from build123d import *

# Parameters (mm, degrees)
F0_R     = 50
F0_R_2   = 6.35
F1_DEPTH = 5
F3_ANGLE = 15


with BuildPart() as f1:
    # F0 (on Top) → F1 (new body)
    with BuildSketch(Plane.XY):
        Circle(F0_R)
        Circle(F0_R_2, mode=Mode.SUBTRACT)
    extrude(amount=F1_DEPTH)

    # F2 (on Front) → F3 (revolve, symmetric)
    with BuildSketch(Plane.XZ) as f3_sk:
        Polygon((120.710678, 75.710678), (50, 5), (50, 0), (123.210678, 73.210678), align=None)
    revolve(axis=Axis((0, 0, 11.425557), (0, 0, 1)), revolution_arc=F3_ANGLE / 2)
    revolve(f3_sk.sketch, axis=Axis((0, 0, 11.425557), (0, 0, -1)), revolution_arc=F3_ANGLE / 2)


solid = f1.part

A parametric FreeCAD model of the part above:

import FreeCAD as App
import Part
import Sketcher
from FreeCAD import Vector
Q = App.Units.Quantity

doc = App.newDocument("Part")
body = doc.addObject("PartDesign::Body", "Body")

# Sketch on XY plane
sketch1 = body.newObject("Sketcher::SketchObject", "Sketch")
sketch1.AttachmentSupport = (doc.getObject("XY_Plane"), [""])
sketch1.MapMode = "FlatFace"
sketch1.addGeometry(Part.Circle(Vector(0, 0, 0), Vector(0, 0, 1), 50), False)
sketch1.addGeometry(Part.Circle(Vector(0, 0, 0), Vector(0, 0, 1), 6.35), False)
sketch1.addConstraint(Sketcher.Constraint("Coincident", 0, 3, -1, 1))
sketch1.addConstraint(Sketcher.Constraint("Coincident", 1, 3, -1, 1))
sketch1.addConstraint(Sketcher.Constraint("Diameter", 0, Q("100 mm")))
sketch1.addConstraint(Sketcher.Constraint("Diameter", 1, Q("12.7 mm")))
pad1 = body.newObject("PartDesign::Pad", "Pad")
pad1.Profile = sketch1
pad1.Length = 5

# Sketch on XZ plane
sketch2 = body.newObject("Sketcher::SketchObject", "Sketch001")
sketch2.AttachmentSupport = (doc.getObject("XZ_Plane"), [""])
sketch2.MapMode = "FlatFace"
sketch2.addGeometry(Part.LineSegment(Vector(120.710678, 75.710678, 0), Vector(50, 5, 0)), False)
sketch2.addGeometry(Part.LineSegment(Vector(50, 5, 0), Vector(50, 0, 0)), False)
sketch2.addGeometry(Part.LineSegment(Vector(50, 0, 0), Vector(123.210678, 73.210678, 0)), False)
sketch2.addGeometry(Part.LineSegment(Vector(123.210678, 73.210678, 0), Vector(120.710678, 75.710678, 0)), False)
sketch2.addConstraint(Sketcher.Constraint("Coincident", 0, 2, 1, 1))
sketch2.addConstraint(Sketcher.Constraint("Coincident", 1, 2, 2, 1))
sketch2.addConstraint(Sketcher.Constraint("Coincident", 2, 2, 3, 1))
sketch2.addConstraint(Sketcher.Constraint("Coincident", 3, 2, 0, 1))
sketch2.addConstraint(Sketcher.Constraint("Vertical", 1))
sketch2.addConstraint(Sketcher.Constraint("PointOnObject", 1, 2, -1))
sketch2.addConstraint(Sketcher.Constraint("Parallel", 0, 2))
sketch2.addConstraint(Sketcher.Constraint("Perpendicular", 2, 3))
sketch2.addConstraint(Sketcher.Constraint("DistanceY", 1, 2, 1, 1, Q("5 mm")))
sketch2.addConstraint(Sketcher.Constraint("Angle", 0, Q("-135 deg")))
sketch2.addConstraint(Sketcher.Constraint("Distance", 0, Q("100 mm")))
sketch2.addConstraint(Sketcher.Constraint("DistanceX", -1, 1, 0, 2, Q("50 mm")))
revolution = body.newObject("PartDesign::Revolution", "Revolution")
revolution.Profile = sketch2
revolution.ReferenceAxis = (sketch2, ["V_Axis"])
revolution.Angle = 7.5

# Sketch on XZ plane
sketch3 = body.newObject("Sketcher::SketchObject", "Sketch002")
sketch3.AttachmentSupport = (doc.getObject("XZ_Plane"), [""])
sketch3.MapMode = "FlatFace"
sketch3.addGeometry(Part.LineSegment(Vector(120.710678, 75.710678, 0), Vector(50, 5, 0)), False)
sketch3.addGeometry(Part.LineSegment(Vector(50, 5, 0), Vector(50, 0, 0)), False)
sketch3.addGeometry(Part.LineSegment(Vector(50, 0, 0), Vector(123.210678, 73.210678, 0)), False)
sketch3.addGeometry(Part.LineSegment(Vector(123.210678, 73.210678, 0), Vector(120.710678, 75.710678, 0)), False)
sketch3.addConstraint(Sketcher.Constraint("Coincident", 0, 2, 1, 1))
sketch3.addConstraint(Sketcher.Constraint("Coincident", 1, 2, 2, 1))
sketch3.addConstraint(Sketcher.Constraint("Coincident", 2, 2, 3, 1))
sketch3.addConstraint(Sketcher.Constraint("Coincident", 3, 2, 0, 1))
sketch3.addConstraint(Sketcher.Constraint("Vertical", 1))
sketch3.addConstraint(Sketcher.Constraint("PointOnObject", 1, 2, -1))
sketch3.addConstraint(Sketcher.Constraint("Parallel", 0, 2))
sketch3.addConstraint(Sketcher.Constraint("Perpendicular", 2, 3))
sketch3.addConstraint(Sketcher.Constraint("DistanceY", 1, 2, 1, 1, Q("5 mm")))
sketch3.addConstraint(Sketcher.Constraint("Angle", 0, Q("-135 deg")))
sketch3.addConstraint(Sketcher.Constraint("Distance", 0, Q("100 mm")))
sketch3.addConstraint(Sketcher.Constraint("DistanceX", -1, 1, 0, 2, Q("50 mm")))
revolution2 = body.newObject("PartDesign::Revolution", "Revolution001")
revolution2.Profile = sketch3
revolution2.ReferenceAxis = (sketch3, ["V_Axis"])
revolution2.Angle = 7.5
revolution2.Reversed = True

doc.recompute()
